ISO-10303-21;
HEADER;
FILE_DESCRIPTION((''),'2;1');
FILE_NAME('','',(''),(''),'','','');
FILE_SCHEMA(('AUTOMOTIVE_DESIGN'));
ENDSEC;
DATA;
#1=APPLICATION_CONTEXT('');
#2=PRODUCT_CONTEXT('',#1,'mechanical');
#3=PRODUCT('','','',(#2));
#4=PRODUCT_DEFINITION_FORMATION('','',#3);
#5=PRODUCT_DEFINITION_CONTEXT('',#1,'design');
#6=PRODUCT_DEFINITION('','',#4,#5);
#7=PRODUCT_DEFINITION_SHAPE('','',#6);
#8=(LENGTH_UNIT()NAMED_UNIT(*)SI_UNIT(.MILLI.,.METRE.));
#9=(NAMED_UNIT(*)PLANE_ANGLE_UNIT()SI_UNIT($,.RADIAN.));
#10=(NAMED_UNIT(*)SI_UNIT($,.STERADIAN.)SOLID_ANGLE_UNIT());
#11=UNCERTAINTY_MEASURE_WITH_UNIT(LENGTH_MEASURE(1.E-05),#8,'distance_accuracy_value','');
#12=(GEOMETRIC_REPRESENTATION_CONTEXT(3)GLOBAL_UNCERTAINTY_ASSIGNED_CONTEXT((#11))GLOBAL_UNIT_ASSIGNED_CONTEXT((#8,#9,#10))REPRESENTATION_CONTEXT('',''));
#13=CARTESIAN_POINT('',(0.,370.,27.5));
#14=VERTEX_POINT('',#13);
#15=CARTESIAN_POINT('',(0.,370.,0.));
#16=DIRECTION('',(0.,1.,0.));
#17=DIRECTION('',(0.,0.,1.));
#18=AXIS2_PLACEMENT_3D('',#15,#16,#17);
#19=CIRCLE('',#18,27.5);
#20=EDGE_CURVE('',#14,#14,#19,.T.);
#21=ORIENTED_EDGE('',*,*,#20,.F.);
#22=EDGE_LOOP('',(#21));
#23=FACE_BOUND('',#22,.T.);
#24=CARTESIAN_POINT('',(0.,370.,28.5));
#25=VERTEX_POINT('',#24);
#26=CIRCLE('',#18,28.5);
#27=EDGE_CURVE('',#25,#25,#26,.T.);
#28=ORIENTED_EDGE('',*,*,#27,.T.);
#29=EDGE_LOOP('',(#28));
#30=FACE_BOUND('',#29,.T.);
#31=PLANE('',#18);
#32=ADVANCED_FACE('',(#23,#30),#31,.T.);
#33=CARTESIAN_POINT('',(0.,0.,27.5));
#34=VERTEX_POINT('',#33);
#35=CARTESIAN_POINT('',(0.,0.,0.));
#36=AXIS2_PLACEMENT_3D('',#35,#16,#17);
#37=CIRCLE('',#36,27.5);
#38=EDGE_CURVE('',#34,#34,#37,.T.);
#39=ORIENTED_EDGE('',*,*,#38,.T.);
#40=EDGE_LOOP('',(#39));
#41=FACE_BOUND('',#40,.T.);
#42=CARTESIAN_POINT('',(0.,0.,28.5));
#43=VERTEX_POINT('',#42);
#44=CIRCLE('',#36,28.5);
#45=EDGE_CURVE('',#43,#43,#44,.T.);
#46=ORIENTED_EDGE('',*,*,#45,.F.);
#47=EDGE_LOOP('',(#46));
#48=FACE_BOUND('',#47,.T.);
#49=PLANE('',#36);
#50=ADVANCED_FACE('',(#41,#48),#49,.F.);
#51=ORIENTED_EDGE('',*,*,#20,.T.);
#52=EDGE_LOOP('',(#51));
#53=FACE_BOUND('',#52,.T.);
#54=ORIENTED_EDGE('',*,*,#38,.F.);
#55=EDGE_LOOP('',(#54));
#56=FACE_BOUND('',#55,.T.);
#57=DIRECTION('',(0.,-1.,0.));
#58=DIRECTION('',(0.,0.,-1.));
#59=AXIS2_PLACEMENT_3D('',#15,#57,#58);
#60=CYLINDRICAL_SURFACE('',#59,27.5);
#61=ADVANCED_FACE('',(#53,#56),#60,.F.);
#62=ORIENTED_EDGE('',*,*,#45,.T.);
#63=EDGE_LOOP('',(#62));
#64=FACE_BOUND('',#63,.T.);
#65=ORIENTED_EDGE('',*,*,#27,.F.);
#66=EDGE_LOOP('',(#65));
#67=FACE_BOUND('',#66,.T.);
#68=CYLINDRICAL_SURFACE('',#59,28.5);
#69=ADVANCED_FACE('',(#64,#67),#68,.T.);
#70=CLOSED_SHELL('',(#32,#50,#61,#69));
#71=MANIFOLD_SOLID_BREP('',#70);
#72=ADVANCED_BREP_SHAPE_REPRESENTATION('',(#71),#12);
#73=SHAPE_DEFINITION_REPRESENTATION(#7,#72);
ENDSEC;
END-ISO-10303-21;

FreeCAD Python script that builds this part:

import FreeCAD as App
import Part
import Sketcher
from FreeCAD import Vector
Q = App.Units.Quantity

doc = App.newDocument("Part")
body = doc.addObject("PartDesign::Body", "Body")

sketch1 = doc.addObject("Sketcher::SketchObject", "Sketch")
body.addObject(sketch1)
sketch1.AttachmentSupport = (doc.XZ_Plane, [""])
sketch1.MapMode = "FlatFace"
sketch1.addGeometry([
    Part.Circle(Vector(0, 0, 0), Vector(0, 0, 1), 28),
    Part.Circle(Vector(0, 0, 0), Vector(0, 0, 1), 28),
], False)
sketch1.addConstraint([
    Sketcher.Constraint("Coincident", 0, 3, -1, 1),
    Sketcher.Constraint("Coincident", 1, 3, -1, 1),
    Sketcher.Constraint("Diameter", 0, Q("57 mm")),
    Sketcher.Constraint("Diameter", 1, Q("55 mm")),
])
pad1 = doc.addObject("PartDesign::Pad", "Pad")
body.addObject(pad1)
pad1.Profile = sketch1
pad1.Length = 370
pad1.Reversed = True

doc.recompute()
